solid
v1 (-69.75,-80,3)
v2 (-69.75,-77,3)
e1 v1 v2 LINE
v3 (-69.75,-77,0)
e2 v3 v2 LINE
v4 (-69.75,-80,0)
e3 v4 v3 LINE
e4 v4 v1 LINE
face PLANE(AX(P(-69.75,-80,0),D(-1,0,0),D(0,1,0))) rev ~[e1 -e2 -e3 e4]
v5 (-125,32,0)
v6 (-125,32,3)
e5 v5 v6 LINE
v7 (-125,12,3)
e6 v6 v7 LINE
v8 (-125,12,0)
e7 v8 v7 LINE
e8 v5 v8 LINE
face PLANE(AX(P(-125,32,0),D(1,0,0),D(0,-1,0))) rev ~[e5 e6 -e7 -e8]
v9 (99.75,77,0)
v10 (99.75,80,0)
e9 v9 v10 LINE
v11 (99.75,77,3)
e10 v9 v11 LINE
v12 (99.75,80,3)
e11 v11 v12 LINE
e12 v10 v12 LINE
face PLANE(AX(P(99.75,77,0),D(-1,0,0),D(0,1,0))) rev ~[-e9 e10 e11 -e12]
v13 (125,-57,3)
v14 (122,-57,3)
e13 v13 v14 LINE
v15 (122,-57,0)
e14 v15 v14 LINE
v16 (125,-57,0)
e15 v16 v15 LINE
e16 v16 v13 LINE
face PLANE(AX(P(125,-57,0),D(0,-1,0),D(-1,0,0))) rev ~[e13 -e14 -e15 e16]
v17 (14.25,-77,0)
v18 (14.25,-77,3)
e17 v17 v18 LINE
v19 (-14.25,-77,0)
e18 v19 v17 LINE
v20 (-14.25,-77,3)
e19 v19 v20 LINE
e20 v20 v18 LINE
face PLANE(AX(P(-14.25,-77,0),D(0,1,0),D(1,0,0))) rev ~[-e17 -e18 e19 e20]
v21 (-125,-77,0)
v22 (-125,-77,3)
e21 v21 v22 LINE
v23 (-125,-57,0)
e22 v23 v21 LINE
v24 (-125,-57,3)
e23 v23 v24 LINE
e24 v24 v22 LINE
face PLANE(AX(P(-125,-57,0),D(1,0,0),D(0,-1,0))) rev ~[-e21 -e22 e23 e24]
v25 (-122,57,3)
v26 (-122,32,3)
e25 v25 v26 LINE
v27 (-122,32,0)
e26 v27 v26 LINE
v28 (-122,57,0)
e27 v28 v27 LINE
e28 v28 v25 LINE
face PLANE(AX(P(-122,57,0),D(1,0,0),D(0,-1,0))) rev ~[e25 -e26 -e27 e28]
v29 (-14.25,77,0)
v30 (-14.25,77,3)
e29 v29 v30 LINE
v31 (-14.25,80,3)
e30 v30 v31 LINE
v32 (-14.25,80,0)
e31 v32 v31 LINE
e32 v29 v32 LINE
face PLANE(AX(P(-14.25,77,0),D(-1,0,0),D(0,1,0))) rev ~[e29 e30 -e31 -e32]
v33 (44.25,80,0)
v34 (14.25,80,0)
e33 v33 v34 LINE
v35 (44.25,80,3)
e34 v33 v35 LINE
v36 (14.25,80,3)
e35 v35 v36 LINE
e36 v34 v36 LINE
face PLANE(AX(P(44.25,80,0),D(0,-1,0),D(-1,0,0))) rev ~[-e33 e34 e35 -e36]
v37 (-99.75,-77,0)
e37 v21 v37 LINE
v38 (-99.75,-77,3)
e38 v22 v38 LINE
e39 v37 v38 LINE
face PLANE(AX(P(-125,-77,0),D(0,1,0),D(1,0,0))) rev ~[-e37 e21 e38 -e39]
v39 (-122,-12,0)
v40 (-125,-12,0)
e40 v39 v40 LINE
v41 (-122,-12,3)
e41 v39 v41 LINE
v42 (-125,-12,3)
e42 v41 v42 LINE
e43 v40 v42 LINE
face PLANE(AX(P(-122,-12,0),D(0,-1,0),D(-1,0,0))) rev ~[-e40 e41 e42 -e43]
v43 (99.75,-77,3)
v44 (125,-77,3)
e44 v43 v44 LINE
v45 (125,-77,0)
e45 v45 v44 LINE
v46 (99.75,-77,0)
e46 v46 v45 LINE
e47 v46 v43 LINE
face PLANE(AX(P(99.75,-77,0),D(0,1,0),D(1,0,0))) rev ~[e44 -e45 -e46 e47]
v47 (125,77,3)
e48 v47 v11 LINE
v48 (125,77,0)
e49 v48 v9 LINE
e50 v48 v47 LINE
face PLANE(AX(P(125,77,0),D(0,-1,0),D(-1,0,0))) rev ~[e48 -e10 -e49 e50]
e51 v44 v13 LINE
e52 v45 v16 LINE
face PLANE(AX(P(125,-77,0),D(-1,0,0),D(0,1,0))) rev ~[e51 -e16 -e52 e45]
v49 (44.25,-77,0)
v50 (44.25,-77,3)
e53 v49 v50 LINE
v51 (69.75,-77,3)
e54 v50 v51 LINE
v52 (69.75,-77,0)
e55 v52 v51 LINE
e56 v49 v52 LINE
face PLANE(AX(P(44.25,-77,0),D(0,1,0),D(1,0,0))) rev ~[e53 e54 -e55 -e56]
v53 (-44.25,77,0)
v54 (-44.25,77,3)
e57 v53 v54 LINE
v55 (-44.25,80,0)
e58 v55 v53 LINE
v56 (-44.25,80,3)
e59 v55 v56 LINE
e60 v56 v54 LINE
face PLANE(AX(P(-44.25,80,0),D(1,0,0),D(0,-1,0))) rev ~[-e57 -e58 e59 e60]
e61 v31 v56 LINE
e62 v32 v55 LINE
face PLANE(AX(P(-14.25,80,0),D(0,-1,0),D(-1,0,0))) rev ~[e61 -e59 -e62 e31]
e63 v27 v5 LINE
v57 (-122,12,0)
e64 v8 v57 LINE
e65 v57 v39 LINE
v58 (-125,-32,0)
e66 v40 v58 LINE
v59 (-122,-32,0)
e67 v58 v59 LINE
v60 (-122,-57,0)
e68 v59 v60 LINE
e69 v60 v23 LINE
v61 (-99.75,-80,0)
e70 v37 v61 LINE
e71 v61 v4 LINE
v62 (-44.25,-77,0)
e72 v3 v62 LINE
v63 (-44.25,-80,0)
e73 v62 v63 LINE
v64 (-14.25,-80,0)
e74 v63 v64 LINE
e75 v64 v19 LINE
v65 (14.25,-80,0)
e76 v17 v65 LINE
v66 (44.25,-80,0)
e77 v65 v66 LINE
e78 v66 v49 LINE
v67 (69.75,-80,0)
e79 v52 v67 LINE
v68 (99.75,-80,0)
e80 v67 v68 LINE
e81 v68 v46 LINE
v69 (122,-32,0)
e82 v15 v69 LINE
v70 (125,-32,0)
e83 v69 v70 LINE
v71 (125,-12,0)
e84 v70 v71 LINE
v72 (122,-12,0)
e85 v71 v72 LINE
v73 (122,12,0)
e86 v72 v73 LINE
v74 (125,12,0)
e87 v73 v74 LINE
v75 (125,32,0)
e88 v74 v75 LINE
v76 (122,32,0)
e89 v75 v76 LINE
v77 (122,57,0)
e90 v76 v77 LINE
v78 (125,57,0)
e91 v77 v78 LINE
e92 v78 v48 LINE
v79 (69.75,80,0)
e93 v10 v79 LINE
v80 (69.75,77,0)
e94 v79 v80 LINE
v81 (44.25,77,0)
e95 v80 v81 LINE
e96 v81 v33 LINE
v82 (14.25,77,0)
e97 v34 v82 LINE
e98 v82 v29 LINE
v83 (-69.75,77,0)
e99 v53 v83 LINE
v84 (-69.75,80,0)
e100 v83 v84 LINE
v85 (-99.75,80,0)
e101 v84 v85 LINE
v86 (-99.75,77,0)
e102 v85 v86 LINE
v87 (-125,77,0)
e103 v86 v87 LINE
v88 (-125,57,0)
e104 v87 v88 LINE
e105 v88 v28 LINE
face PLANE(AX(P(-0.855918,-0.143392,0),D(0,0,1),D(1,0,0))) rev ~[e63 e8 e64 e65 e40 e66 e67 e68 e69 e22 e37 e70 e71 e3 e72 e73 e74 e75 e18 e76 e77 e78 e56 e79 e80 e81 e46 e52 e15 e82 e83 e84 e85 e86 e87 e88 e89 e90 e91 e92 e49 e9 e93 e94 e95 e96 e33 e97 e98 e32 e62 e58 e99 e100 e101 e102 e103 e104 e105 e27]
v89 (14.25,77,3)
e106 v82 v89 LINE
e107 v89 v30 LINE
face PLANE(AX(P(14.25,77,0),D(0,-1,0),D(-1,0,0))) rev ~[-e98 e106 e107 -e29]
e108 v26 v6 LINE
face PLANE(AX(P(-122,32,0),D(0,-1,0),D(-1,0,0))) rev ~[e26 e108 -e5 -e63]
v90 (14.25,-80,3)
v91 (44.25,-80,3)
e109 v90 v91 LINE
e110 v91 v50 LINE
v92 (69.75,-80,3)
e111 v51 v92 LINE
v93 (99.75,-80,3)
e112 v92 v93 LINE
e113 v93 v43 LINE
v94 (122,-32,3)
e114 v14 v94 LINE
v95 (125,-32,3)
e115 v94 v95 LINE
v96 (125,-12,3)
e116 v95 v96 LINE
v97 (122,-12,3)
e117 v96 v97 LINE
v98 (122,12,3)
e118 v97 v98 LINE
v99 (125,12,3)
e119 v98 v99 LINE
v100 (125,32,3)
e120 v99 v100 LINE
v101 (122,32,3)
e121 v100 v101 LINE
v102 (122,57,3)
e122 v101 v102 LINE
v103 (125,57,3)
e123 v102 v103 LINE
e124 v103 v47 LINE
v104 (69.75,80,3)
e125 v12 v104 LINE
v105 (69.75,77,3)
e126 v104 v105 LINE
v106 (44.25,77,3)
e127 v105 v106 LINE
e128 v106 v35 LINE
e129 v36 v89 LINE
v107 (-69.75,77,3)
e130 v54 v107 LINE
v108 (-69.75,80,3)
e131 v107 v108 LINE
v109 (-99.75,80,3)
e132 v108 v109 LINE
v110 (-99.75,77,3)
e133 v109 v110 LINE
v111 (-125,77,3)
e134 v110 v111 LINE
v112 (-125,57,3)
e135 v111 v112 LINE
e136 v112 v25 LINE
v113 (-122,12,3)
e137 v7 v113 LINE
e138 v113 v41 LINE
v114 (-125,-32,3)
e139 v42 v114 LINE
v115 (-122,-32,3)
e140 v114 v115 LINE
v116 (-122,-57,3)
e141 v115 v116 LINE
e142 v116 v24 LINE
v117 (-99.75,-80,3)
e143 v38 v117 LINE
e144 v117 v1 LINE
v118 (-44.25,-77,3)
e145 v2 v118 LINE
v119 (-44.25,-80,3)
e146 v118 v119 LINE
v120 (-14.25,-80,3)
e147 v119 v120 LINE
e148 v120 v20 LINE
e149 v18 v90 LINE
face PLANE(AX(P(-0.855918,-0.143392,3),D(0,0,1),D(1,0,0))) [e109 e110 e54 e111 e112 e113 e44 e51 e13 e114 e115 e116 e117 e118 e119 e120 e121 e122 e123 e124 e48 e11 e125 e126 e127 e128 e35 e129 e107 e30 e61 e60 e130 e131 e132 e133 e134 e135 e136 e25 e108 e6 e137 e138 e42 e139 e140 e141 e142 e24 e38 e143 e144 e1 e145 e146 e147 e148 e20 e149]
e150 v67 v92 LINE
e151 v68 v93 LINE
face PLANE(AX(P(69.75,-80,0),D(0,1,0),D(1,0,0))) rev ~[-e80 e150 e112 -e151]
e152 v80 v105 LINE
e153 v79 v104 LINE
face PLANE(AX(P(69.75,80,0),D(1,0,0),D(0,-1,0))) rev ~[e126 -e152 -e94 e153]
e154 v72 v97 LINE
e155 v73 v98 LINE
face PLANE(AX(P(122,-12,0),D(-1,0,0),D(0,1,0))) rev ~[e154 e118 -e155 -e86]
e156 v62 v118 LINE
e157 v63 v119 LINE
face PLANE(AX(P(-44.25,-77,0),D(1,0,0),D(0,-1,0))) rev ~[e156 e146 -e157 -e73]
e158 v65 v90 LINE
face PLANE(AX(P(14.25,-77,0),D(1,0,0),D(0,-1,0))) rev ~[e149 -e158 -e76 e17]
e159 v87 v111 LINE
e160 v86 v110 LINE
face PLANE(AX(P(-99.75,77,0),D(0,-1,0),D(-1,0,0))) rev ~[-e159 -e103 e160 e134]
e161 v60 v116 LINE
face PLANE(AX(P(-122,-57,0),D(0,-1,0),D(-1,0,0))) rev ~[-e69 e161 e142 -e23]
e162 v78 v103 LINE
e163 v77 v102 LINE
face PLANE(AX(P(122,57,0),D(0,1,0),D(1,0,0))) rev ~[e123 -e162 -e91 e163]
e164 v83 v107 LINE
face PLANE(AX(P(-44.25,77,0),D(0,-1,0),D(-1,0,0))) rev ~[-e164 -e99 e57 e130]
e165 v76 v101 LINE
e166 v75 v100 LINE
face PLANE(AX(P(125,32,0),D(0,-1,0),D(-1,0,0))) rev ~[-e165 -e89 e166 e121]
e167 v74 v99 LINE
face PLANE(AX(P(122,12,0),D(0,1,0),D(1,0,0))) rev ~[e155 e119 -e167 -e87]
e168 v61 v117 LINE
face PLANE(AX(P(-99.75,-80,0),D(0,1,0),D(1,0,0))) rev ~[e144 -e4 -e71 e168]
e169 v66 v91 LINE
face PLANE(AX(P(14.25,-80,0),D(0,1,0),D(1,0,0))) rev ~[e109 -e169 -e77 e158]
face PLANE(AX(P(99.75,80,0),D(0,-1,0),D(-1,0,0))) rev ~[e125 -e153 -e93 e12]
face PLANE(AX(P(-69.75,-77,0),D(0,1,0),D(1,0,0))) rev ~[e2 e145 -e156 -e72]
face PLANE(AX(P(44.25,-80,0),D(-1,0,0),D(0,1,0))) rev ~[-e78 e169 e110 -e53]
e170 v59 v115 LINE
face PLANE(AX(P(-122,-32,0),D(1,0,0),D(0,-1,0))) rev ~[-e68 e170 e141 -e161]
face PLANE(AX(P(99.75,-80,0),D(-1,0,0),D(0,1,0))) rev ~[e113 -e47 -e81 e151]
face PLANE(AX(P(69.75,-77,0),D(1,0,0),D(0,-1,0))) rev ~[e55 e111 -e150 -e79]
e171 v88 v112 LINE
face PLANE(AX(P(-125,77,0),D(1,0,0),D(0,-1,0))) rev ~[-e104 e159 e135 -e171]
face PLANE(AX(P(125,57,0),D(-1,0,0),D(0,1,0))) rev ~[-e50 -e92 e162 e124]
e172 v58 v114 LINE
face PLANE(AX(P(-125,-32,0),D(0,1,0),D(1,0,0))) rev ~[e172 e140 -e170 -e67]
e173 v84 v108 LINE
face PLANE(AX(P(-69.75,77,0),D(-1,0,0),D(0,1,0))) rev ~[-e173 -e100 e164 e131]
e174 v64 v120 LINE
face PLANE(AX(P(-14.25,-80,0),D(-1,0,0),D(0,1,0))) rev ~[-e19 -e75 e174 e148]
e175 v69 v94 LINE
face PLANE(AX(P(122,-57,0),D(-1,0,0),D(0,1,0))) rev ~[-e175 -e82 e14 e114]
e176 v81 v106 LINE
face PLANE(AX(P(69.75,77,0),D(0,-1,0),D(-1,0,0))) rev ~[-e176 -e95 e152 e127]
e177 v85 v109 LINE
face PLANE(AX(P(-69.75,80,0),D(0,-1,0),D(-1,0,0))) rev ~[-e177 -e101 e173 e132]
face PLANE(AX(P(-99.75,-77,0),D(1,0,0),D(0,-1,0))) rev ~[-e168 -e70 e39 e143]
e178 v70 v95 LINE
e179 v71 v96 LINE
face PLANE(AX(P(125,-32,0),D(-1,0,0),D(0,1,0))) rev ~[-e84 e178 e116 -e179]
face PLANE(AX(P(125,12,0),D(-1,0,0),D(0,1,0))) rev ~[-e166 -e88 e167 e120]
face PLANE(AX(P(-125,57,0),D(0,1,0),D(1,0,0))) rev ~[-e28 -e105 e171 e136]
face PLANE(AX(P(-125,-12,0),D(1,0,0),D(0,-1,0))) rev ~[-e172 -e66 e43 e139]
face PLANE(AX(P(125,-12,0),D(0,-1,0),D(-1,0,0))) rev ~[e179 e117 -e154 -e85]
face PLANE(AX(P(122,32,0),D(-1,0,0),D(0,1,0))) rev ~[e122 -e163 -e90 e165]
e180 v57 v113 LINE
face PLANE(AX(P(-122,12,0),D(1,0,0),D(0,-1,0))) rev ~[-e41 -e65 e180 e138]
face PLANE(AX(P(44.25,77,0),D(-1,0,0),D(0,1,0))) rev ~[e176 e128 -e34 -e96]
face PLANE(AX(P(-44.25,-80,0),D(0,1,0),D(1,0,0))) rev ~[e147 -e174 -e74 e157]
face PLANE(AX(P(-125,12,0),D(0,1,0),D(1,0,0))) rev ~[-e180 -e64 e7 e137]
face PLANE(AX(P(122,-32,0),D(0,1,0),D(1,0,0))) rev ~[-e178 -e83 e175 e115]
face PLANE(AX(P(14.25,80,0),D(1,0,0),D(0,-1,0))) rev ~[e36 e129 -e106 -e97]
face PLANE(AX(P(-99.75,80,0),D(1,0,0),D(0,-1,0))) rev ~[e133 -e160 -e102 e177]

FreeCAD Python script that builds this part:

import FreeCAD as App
import Part
import Sketcher


def add_polygon(sketch, points):
    """Adds a closed chain of lines whose ends are joined by coincident constraints."""
    first, n = sketch.GeometryCount, len(points)
    for a, b in zip(points, points[1:] + points[:1]):
        sketch.addGeometry(Part.LineSegment(App.Vector(*a, 0), App.Vector(*b, 0)), False)
    for i in range(n):
        sketch.addConstraint(Sketcher.Constraint("Coincident", first + i, 2, first + (i + 1) % n, 1))

doc = App.newDocument("Part")
body = doc.addObject("PartDesign::Body", "Body")

# Sketch on XY plane
sketch1 = doc.addObject("Sketcher::SketchObject", "Sketch")
body.addObject(sketch1)
sketch1.AttachmentSupport = (doc.XY_Plane, [""])
sketch1.MapMode = "FlatFace"
add_polygon(sketch1, [(-99.75, -77), (-99.75, -80), (-69.75, -80), (-69.75, -77), (-44.25, -77), (-44.25, -80), (-14.25, -80), (-14.25, -77), (14.25, -77), (14.25, -80), (44.25, -80), (44.25, -77), (69.75, -77), (69.75, -80), (99.75, -80), (99.75, -77), (125, -77), (125, -57), (122, -57), (122, -32), (125, -32), (125, -12), (122, -12), (122, 12), (125, 12), (125, 32), (122, 32), (122, 57), (125, 57), (125, 77), (99.75, 77), (99.75, 80), (69.75, 80), (69.75, 77), (44.25, 77), (44.25, 80), (14.25, 80), (14.25, 77), (-14.25, 77), (-14.25, 80), (-44.25, 80), (-44.25, 77), (-69.75, 77), (-69.75, 80), (-99.75, 80), (-99.75, 77), (-125, 77), (-125, 57), (-122, 57), (-122, 32), (-125, 32), (-125, 12), (-122, 12), (-122, -12), (-125, -12), (-125, -32), (-122, -32), (-122, -57), (-125, -57), (-125, -77)])  # lines 0-59
sketch1.addConstraint([
    Sketcher.Constraint("Vertical", 0),
    Sketcher.Constraint("Horizontal", 1),
    Sketcher.Constraint("Vertical", 2),
    Sketcher.Constraint("Horizontal", 3),
    Sketcher.Constraint("Vertical", 4),
    Sketcher.Constraint("Horizontal", 5),
    Sketcher.Constraint("Vertical", 6),
    Sketcher.Constraint("Horizontal", 7),
    Sketcher.Constraint("Vertical", 8),
    Sketcher.Constraint("Horizontal", 9),
    Sketcher.Constraint("Vertical", 10),
    Sketcher.Constraint("Horizontal", 11),
    Sketcher.Constraint("Vertical", 12),
    Sketcher.Constraint("Horizontal", 13),
    Sketcher.Constraint("Vertical", 14),
    Sketcher.Constraint("Horizontal", 15),
    Sketcher.Constraint("Vertical", 16),
    Sketcher.Constraint("Horizontal", 17),
    Sketcher.Constraint("Vertical", 18),
    Sketcher.Constraint("Horizontal", 19),
    Sketcher.Constraint("Vertical", 20),
    Sketcher.Constraint("Horizontal", 21),
    Sketcher.Constraint("Vertical", 22),
    Sketcher.Constraint("Horizontal", 23),
    Sketcher.Constraint("Vertical", 24),
    Sketcher.Constraint("Horizontal", 25),
    Sketcher.Constraint("Vertical", 26),
    Sketcher.Constraint("Horizontal", 27),
    Sketcher.Constraint("Vertical", 28),
    Sketcher.Constraint("Horizontal", 29),
    Sketcher.Constraint("Vertical", 30),
    Sketcher.Constraint("Horizontal", 31),
    Sketcher.Constraint("Vertical", 32),
    Sketcher.Constraint("Horizontal", 33),
    Sketcher.Constraint("Vertical", 34),
    Sketcher.Constraint("Horizontal", 35),
    Sketcher.Constraint("Vertical", 36),
    Sketcher.Constraint("Horizontal", 37),
    Sketcher.Constraint("Vertical", 38),
    Sketcher.Constraint("Horizontal", 39),
    Sketcher.Constraint("Vertical", 40),
    Sketcher.Constraint("Horizontal", 41),
    Sketcher.Constraint("Vertical", 42),
    Sketcher.Constraint("Horizontal", 43),
    Sketcher.Constraint("Vertical", 44),
    Sketcher.Constraint("Horizontal", 45),
    Sketcher.Constraint("Vertical", 46),
    Sketcher.Constraint("Horizontal", 47),
    Sketcher.Constraint("Vertical", 48),
    Sketcher.Constraint("Horizontal", 49),
    Sketcher.Constraint("Vertical", 50),
    Sketcher.Constraint("Horizontal", 51),
    Sketcher.Constraint("Vertical", 52),
    Sketcher.Constraint("Horizontal", 53),
    Sketcher.Constraint("Vertical", 54),
    Sketcher.Constraint("Horizontal", 55),
    Sketcher.Constraint("Vertical", 56),
    Sketcher.Constraint("Horizontal", 57),
    Sketcher.Constraint("Vertical", 58),
    Sketcher.Constraint("Horizontal", 59),
    Sketcher.Constraint("Symmetric", 0, 2, 30, 2, -1, 1),
    Sketcher.Constraint("Symmetric", 2, 2, 32, 2, -1, 1),
    Sketcher.Constraint("Symmetric", 4, 2, 34, 2, -1, 1),
    Sketcher.Constraint("Symmetric", 6, 2, 36, 2, -1, 1),
    Sketcher.Constraint("Symmetric", 8, 2, 38, 2, -1, 1),
    Sketcher.Constraint("Symmetric", 10, 2, 40, 2, -1, 1),
    Sketcher.Constraint("Symmetric", 12, 2, 42, 2, -1, 1),
    Sketcher.Constraint("Symmetric", 14, 2, 44, 2, -1, 1),
    Sketcher.Constraint("Symmetric", 16, 2, 46, 2, -1, 1),
    Sketcher.Constraint("Symmetric", 18, 2, 48, 2, -1, 1),
    Sketcher.Constraint("Symmetric", 20, 2, 50, 2, -1, 1),
    Sketcher.Constraint("Symmetric", 22, 2, 52, 2, -1, 1),
    Sketcher.Constraint("Symmetric", 24, 2, 54, 2, -1, 1),
    Sketcher.Constraint("Symmetric", 26, 2, 56, 2, -1, 1),
    Sketcher.Constraint("Symmetric", 28, 2, 58, 2, -1, 1),
    Sketcher.Constraint("Symmetric", 5, 2, 8, 2, -2),
    Sketcher.Constraint("Symmetric", 3, 2, 10, 2, -2),
    Sketcher.Constraint("Symmetric", 1, 2, 12, 2, -2),
    Sketcher.Constraint("Symmetric", 29, 2, 44, 2, -2),
    Sketcher.Constraint("Symmetric", 27, 2, 46, 2, -2),
    Sketcher.Constraint("Symmetric", 25, 2, 48, 2, -2),
    Sketcher.Constraint("Symmetric", 23, 2, 50, 2, -2),
    Sketcher.Constraint("Horizontal", 1, 2, 4, 2),
    Sketcher.Constraint("Horizontal", 3, 2, 6, 2),
    Sketcher.Constraint("Horizontal", 11, 2, 14, 2),
    Sketcher.Constraint("Vertical", 16, 2, 19, 2),
    Sketcher.Constraint("Vertical", 18, 2, 21, 2),
    Sketcher.Constraint("Equal", 1, 5),
    Sketcher.Constraint("Equal", 57, 0),
    Sketcher.Constraint("Equal", 16, 20),
    Sketcher.Constraint("DistanceX", 1, 1, 1, 2, 30.0),
    Sketcher.Constraint("DistanceX", 17, 2, 17, 1, 3.0),
    Sketcher.Constraint("DistanceY", 16, 1, 16, 2, 20.0),
    Sketcher.Constraint("DistanceY", 18, 1, 18, 2, 25.0),
    Sketcher.Constraint("DistanceY", 22, 1, 22, 2, 24.0),
    Sketcher.Constraint("DistanceX", 3, 1, 3, 2, 25.5),
    Sketcher.Constraint("DistanceX", 7, 1, 7, 2, 28.5),
    Sketcher.Constraint("DistanceX", -1, 1, 15, 2, 125.0),
])
pad1 = doc.addObject("PartDesign::Pad", "Pad")
body.addObject(pad1)
pad1.Profile = sketch1
pad1.Length = 3

doc.recompute()
